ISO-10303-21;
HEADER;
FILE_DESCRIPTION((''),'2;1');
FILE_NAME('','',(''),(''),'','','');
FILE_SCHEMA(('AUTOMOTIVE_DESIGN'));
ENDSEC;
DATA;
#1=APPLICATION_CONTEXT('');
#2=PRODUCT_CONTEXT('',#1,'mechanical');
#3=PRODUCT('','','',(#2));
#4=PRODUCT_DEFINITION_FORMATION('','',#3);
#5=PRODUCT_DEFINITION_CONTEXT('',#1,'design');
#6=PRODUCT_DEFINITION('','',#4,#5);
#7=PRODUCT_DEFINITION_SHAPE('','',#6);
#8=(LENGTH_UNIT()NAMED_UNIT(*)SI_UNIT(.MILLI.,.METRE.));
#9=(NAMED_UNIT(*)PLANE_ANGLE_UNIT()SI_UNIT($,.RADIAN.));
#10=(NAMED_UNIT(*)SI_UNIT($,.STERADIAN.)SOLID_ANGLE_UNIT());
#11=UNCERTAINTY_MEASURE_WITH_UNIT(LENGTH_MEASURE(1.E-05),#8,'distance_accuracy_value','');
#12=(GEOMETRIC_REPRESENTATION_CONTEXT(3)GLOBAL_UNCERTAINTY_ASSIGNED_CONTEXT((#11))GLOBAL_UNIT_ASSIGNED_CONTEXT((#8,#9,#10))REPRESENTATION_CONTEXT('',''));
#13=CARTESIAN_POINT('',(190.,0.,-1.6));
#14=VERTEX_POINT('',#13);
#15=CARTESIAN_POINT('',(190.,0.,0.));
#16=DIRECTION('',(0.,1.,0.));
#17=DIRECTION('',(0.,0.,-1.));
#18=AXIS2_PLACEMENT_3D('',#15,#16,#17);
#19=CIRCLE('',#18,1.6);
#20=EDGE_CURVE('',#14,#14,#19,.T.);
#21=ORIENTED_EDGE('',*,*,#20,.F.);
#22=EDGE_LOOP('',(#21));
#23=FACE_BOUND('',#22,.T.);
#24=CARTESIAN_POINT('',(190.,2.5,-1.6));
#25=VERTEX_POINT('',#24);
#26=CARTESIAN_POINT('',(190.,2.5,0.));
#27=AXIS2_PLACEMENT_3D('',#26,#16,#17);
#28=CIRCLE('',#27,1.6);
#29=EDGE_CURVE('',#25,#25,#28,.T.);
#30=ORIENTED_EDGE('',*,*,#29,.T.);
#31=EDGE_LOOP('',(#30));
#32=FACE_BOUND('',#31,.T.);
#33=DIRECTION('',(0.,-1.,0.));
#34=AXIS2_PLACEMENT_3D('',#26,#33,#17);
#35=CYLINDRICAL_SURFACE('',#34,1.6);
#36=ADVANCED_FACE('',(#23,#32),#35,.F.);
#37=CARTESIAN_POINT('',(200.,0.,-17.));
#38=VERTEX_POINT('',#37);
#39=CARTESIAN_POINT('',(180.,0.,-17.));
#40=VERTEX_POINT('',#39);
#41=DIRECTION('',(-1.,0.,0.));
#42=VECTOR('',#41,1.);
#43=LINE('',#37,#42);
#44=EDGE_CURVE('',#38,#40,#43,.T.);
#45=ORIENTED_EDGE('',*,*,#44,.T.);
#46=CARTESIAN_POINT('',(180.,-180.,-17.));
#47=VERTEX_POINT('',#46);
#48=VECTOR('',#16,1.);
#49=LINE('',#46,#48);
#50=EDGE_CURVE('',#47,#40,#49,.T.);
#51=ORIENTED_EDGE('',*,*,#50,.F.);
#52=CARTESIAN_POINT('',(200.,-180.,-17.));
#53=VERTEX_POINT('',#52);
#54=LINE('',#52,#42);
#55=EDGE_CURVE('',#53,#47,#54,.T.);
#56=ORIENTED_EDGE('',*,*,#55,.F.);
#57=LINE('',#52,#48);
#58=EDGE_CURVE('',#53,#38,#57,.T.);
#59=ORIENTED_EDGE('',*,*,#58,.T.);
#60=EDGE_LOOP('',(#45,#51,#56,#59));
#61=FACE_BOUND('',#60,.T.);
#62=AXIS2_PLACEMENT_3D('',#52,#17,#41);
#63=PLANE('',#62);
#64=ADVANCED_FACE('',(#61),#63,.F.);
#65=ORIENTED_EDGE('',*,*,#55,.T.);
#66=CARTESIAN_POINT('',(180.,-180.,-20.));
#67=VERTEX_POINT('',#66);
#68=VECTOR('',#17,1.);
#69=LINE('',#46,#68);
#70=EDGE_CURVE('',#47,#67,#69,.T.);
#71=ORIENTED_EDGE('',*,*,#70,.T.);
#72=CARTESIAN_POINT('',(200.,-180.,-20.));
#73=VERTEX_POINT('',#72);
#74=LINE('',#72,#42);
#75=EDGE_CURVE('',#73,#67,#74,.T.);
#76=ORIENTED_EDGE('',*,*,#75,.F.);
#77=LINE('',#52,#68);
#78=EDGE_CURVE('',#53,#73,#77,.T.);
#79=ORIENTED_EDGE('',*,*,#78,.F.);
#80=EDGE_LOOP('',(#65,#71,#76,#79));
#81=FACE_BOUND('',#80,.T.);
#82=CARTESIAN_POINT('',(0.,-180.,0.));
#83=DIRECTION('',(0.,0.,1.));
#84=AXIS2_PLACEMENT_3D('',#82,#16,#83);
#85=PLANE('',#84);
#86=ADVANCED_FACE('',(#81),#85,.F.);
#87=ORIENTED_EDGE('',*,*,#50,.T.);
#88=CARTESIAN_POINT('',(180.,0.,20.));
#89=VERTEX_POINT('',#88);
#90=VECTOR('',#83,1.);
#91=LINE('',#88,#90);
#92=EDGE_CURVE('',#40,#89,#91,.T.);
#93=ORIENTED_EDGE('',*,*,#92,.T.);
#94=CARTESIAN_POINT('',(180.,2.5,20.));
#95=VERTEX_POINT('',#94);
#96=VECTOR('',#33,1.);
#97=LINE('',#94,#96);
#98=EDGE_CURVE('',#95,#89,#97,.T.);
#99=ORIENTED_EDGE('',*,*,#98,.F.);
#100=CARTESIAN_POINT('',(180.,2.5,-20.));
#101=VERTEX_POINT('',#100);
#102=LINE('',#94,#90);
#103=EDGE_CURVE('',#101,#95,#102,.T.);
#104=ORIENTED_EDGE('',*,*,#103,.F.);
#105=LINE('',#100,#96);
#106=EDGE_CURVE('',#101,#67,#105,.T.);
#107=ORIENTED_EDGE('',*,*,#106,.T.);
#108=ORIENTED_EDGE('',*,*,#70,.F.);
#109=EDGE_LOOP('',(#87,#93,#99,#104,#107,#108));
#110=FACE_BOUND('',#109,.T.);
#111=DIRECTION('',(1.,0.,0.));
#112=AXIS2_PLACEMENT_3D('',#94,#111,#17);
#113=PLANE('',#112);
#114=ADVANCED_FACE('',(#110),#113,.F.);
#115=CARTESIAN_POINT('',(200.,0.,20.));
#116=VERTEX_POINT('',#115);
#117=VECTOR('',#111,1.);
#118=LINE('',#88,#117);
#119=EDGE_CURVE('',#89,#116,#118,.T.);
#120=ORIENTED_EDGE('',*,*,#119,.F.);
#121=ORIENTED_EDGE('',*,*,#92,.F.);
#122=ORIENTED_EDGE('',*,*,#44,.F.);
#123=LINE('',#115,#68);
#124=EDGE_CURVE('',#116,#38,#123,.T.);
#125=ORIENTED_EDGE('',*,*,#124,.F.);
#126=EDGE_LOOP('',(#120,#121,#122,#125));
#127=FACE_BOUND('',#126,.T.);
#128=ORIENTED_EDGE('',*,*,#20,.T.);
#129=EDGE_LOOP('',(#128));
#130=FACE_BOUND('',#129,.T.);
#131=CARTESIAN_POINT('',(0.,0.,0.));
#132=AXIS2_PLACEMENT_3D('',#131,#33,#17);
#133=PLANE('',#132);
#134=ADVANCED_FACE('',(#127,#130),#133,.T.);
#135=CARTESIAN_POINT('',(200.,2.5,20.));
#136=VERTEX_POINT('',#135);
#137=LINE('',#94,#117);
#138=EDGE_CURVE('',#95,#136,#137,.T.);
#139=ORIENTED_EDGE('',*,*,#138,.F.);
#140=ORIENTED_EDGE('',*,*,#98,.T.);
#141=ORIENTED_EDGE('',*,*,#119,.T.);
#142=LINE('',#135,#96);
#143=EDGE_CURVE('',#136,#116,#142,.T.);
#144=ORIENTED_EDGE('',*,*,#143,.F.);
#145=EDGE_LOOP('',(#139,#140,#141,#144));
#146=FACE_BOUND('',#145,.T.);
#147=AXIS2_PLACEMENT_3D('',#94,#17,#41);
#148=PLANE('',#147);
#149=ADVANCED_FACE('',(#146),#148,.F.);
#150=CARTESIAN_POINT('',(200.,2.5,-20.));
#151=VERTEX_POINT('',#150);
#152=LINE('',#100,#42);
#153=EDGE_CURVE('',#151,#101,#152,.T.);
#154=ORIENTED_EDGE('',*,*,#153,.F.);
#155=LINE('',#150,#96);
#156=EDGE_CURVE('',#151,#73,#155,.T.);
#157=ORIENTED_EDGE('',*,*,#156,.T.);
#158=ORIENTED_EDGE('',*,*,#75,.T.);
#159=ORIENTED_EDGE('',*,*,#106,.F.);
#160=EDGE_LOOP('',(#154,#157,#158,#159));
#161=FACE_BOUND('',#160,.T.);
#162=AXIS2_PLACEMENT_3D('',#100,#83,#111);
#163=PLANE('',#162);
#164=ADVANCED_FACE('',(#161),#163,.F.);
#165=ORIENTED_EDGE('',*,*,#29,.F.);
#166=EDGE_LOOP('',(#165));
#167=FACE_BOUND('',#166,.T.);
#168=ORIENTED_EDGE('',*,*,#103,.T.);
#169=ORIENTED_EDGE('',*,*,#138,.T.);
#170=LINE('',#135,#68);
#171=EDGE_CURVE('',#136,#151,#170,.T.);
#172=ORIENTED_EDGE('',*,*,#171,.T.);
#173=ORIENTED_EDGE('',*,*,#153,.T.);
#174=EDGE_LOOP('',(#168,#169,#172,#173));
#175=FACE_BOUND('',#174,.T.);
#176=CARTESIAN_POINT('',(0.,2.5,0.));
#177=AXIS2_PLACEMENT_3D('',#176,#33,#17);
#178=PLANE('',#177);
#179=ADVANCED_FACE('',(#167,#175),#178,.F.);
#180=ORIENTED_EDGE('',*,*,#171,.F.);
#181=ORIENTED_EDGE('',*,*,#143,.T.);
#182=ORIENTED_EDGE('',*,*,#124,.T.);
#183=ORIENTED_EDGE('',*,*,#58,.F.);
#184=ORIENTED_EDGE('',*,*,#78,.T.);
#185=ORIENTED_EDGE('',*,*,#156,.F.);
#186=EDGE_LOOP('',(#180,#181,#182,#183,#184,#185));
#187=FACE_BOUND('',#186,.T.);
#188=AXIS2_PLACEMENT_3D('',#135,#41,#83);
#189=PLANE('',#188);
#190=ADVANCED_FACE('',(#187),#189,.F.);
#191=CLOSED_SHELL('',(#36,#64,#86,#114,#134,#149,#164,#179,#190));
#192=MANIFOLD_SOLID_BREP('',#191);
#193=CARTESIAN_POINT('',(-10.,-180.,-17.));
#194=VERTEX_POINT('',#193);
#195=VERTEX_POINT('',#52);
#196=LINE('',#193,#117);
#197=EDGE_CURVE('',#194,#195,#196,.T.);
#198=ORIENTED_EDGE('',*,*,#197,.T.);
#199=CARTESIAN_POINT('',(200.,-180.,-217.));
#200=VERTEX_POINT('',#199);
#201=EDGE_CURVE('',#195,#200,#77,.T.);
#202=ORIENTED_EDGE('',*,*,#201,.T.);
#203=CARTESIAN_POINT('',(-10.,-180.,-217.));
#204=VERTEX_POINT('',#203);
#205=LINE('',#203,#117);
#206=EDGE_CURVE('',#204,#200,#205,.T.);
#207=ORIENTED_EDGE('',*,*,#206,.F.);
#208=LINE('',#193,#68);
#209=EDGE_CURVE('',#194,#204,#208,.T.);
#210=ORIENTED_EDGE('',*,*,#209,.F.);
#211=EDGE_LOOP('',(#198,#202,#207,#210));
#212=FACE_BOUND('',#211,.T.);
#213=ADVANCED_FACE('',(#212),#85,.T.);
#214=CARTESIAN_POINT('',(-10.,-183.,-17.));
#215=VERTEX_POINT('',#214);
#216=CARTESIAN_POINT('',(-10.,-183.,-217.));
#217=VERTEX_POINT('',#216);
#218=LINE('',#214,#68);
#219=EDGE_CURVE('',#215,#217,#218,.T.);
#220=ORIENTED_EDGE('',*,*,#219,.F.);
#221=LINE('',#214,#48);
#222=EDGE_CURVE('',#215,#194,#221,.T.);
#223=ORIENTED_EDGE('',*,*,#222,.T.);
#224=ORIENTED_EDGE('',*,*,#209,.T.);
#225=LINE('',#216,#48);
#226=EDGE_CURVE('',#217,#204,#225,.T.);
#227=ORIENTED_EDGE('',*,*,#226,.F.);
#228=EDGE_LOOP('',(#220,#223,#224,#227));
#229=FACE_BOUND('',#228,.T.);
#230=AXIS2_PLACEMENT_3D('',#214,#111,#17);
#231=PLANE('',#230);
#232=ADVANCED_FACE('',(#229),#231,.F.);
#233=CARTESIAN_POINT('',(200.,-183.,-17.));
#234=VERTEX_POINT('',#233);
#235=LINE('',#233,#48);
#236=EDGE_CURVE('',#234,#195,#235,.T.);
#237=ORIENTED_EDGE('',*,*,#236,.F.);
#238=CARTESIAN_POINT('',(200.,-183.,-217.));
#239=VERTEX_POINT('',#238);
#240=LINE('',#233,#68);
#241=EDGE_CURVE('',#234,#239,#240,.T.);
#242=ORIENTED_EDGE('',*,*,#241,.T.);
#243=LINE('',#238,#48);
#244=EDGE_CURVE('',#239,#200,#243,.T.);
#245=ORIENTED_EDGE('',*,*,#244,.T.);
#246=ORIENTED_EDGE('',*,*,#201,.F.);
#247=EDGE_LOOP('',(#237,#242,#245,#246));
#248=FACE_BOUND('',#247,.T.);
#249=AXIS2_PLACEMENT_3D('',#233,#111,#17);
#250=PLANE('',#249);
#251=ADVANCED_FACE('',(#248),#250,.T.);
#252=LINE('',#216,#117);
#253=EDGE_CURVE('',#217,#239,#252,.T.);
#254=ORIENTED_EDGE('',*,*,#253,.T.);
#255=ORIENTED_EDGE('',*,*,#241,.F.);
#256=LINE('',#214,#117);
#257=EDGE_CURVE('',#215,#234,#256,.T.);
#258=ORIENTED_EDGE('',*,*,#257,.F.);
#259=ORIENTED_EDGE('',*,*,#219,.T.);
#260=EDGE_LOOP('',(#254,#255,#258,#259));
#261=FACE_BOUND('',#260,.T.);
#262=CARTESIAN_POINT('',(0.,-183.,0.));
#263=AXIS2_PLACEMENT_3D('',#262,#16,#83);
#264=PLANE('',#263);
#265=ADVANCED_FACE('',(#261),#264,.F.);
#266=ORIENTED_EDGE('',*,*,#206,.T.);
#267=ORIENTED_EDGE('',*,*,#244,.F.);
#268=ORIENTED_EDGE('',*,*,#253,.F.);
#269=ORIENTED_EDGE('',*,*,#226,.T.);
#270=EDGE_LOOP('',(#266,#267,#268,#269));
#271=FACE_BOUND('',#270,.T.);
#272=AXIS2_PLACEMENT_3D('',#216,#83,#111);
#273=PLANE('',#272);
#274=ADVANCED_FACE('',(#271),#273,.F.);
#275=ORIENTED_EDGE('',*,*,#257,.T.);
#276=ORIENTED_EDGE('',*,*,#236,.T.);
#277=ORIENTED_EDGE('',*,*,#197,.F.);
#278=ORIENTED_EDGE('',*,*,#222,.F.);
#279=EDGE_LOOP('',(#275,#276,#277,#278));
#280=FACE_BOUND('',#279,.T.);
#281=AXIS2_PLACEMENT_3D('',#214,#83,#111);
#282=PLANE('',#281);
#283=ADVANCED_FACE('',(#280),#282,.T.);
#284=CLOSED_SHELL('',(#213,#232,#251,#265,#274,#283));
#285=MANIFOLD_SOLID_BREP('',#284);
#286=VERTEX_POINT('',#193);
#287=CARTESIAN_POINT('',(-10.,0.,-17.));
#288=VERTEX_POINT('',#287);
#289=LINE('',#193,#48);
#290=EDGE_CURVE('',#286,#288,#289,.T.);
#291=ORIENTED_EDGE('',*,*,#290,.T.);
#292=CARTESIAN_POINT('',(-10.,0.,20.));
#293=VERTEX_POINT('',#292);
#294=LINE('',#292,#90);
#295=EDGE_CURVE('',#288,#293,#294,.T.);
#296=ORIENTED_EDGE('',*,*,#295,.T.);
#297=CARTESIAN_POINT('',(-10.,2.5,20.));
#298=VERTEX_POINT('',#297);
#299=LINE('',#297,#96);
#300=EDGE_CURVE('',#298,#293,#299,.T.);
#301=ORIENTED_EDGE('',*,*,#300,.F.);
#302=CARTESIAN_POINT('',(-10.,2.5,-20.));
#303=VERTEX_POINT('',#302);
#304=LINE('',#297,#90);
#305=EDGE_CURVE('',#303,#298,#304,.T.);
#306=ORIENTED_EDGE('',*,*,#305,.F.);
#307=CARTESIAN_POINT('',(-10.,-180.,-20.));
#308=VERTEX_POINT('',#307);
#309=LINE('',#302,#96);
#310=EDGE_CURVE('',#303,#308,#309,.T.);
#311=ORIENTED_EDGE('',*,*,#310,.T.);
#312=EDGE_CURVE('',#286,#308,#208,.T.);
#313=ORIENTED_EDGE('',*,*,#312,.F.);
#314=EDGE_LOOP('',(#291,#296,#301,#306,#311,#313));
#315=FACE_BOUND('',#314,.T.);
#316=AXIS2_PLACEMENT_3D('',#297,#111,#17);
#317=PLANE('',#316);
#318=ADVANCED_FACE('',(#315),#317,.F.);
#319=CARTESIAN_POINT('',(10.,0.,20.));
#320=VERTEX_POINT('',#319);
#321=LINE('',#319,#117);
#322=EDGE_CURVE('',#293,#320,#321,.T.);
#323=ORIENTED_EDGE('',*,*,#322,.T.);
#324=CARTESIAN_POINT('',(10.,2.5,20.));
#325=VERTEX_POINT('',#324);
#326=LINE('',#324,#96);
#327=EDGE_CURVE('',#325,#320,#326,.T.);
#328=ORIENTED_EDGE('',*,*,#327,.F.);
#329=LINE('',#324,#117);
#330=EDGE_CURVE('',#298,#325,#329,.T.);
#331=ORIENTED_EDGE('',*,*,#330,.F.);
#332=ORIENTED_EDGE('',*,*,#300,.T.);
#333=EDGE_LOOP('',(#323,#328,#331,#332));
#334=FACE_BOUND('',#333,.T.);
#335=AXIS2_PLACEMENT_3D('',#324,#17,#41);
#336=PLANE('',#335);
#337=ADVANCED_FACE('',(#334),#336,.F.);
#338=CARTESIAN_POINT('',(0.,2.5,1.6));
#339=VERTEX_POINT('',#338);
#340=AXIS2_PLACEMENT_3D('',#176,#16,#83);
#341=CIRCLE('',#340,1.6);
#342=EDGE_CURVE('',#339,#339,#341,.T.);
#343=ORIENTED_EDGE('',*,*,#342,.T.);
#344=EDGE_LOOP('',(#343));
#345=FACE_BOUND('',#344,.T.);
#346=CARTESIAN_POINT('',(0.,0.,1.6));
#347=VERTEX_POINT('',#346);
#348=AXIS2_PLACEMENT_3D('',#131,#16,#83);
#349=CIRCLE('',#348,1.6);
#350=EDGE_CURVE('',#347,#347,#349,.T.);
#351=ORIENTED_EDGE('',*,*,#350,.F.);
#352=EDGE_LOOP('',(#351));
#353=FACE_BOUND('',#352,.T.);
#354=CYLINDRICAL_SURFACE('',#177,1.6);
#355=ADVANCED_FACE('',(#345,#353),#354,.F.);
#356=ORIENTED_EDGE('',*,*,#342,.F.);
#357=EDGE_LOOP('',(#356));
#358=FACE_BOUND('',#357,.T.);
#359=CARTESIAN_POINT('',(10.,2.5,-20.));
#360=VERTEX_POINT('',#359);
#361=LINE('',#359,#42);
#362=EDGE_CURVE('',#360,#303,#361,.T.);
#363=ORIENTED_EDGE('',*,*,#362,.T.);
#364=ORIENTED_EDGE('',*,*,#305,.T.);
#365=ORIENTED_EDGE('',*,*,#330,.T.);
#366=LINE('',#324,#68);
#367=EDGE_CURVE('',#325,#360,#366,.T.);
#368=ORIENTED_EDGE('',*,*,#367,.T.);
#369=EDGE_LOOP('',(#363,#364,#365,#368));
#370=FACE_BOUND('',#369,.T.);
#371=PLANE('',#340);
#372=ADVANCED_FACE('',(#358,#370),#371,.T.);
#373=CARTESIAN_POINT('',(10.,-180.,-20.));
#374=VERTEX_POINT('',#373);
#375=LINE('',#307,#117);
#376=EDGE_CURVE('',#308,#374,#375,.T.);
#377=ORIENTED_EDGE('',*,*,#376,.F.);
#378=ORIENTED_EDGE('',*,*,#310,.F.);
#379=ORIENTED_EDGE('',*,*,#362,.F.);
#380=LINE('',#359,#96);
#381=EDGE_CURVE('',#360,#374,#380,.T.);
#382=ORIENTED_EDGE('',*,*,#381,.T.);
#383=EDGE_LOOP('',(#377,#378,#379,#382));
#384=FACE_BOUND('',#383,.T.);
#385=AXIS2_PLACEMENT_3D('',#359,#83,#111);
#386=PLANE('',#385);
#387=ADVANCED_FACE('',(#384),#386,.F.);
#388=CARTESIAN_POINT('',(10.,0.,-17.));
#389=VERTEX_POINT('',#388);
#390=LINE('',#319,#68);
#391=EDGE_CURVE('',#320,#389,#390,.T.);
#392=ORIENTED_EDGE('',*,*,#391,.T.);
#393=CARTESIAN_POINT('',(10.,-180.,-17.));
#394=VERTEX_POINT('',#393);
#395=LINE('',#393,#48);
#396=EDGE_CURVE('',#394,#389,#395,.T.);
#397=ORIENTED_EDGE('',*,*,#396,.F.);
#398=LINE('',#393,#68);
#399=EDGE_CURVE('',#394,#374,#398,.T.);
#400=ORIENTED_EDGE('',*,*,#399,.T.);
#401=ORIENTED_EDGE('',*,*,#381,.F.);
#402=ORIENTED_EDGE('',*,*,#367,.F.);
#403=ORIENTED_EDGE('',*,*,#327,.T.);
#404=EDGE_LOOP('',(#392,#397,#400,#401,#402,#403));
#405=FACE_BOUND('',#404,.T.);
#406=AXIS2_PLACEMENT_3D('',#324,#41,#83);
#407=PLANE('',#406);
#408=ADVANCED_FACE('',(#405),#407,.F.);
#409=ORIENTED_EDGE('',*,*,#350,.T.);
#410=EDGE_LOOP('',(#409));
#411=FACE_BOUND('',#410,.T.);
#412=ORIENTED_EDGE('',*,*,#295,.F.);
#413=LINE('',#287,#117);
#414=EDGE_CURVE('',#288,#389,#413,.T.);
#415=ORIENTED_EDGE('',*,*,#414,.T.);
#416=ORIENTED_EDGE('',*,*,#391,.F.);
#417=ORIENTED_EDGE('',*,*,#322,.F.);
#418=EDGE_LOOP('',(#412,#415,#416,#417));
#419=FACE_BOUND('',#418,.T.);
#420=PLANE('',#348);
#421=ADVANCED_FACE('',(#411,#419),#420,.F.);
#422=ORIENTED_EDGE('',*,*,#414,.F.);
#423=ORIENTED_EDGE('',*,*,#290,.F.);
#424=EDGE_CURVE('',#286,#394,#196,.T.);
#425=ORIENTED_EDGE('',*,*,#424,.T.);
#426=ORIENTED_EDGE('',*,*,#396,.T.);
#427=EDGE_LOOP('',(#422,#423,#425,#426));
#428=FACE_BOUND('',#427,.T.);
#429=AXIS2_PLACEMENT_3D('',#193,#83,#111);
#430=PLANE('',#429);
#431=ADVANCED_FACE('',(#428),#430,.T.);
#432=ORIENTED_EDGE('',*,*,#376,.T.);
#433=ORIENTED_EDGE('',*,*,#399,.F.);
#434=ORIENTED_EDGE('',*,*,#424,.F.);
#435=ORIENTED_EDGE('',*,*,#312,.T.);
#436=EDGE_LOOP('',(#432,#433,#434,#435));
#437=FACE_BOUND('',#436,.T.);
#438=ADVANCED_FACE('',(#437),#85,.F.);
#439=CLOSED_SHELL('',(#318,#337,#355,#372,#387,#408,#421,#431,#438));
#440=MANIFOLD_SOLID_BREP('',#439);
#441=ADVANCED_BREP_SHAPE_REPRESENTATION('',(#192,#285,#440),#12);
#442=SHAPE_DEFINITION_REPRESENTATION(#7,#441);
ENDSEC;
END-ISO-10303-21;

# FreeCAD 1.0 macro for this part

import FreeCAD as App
import Part
import Sketcher
from FreeCAD import Vector
Q = App.Units.Quantity


def add_polygon(sketch, points):
    """Adds a closed chain of lines whose ends are joined by coincident constraints."""
    first, n = sketch.GeometryCount, len(points)
    for a, b in zip(points, points[1:] + points[:1]):
        sketch.addGeometry(Part.LineSegment(App.Vector(*a, 0), App.Vector(*b, 0)), False)
    for i in range(n):
        sketch.addConstraint(Sketcher.Constraint("Coincident", first + i, 2, first + (i + 1) % n, 1))

doc = App.newDocument("Part")
body = doc.addObject("PartDesign::Body", "Body")

sketch1 = body.newObject("Sketcher::SketchObject", "Sketch")
sketch1.AttachmentSupport = (doc.getObject("XZ_Plane"), [""])
sketch1.MapMode = "FlatFace"
add_polygon(sketch1, [(-10, -20), (-10, 20), (10, 20), (10, -20)])
sketch1.addGeometry(Part.Circle(Vector(0, 0, 0), Vector(0, 0, 1), 1.6), False)
sketch1.addConstraint([
    Sketcher.Constraint("Vertical", 0),
    Sketcher.Constraint("Horizontal", 1),
    Sketcher.Constraint("Vertical", 2),
    Sketcher.Constraint("Horizontal", 3),
    Sketcher.Constraint("Coincident", 4, 3, -1, 1),
    Sketcher.Constraint("Symmetric", 0, 2, 2, 2, -1, 1),
    Sketcher.Constraint("Diameter", 4, Q("3.2 mm")),
    Sketcher.Constraint("DistanceX", 1, 1, 1, 2, Q("20 mm")),
    Sketcher.Constraint("DistanceY", 0, 1, 0, 2, Q("40 mm")),
])
pad1 = body.newObject("PartDesign::Pad", "Pad")
pad1.Profile = sketch1
pad1.Length = 2.5
pad1.Reversed = True
body2 = doc.addObject("PartDesign::Body", "Body001")

sketch2 = body2.newObject("Sketcher::SketchObject", "Sketch001")
sketch2.AttachmentSupport = (doc.getObject("XZ_Plane001"), [""])
sketch2.MapMode = "FlatFace"
add_polygon(sketch2, [(180, -20), (180, 20), (200, 20), (200, -20)])
sketch2.addGeometry(Part.Circle(Vector(190, 0, 0), Vector(0, 0, 1), 1.6), False)
sketch2.addConstraint([
    Sketcher.Constraint("Vertical", 0),
    Sketcher.Constraint("Horizontal", 1),
    Sketcher.Constraint("Vertical", 2),
    Sketcher.Constraint("Horizontal", 3),
    Sketcher.Constraint("PointOnObject", 4, 3, -1),
    Sketcher.Constraint("Diameter", 4, Q("3.2 mm")),
    Sketcher.Constraint("DistanceX", 1, 1, 1, 2, Q("20 mm")),
    Sketcher.Constraint("DistanceY", 0, 1, 0, 2, Q("40 mm")),
    Sketcher.Constraint("DistanceX", -1, 1, 4, 3, Q("190 mm")),
    Sketcher.Constraint("DistanceX", -1, 1, 0, 2, Q("180 mm")),
    Sketcher.Constraint("DistanceY", -1, 1, 0, 2, Q("20 mm")),
])
pad2 = body2.newObject("PartDesign::Pad", "Pad001")
pad2.Profile = sketch2
pad2.Length = 2.5
pad2.Reversed = True
body.AllowCompound = True
doc.recompute()

boolean = body.newObject("PartDesign::Boolean", "Boolean")
boolean.Type = "Fuse"
boolean.addObjects([body2])

sketch3 = body.newObject("Sketcher::SketchObject", "Sketch002")
sketch3.AttachmentSupport = (doc.getObject("XZ_Plane"), [""])
sketch3.MapMode = "FlatFace"
add_polygon(sketch3, [(-10, -17), (-10, -20), (10, -20), (10, -17)])
add_polygon(sketch3, [(180, -17), (180, -20), (200, -20), (200, -17)])
sketch3.addConstraint([
    Sketcher.Constraint("Vertical", 0),
    Sketcher.Constraint("Horizontal", 1),
    Sketcher.Constraint("Vertical", 2),
    Sketcher.Constraint("Horizontal", 3),
    Sketcher.Constraint("Vertical", 4),
    Sketcher.Constraint("Horizontal", 5),
    Sketcher.Constraint("Vertical", 6),
    Sketcher.Constraint("Horizontal", 7),
    Sketcher.Constraint("Horizontal", 1, 2, 4, 2),
    Sketcher.Constraint("Horizontal", 3, 2, 6, 2),
    Sketcher.Constraint("Equal", 3, 5),
    Sketcher.Constraint("DistanceX", 1, 1, 1, 2, Q("20 mm")),
    Sketcher.Constraint("DistanceY", 0, 2, 0, 1, Q("3 mm")),
    Sketcher.Constraint("DistanceX", 0, 2, -1, 1, Q("10 mm")),
    Sketcher.Constraint("DistanceY", 0, 2, -1, 1, Q("20 mm")),
    Sketcher.Constraint("DistanceX", -1, 1, 4, 2, Q("180 mm")),
])
pad3 = body.newObject("PartDesign::Pad", "Pad002")
pad3.Profile = sketch3
pad3.Length = 180
body3 = doc.addObject("PartDesign::Body", "Body002")

sketch4 = body3.newObject("Sketcher::SketchObject", "Sketch003")
sketch4.AttachmentSupport = (doc.getObject("XZ_Plane002"), [""])
sketch4.MapMode = "FlatFace"
sketch4.AttachmentOffset = App.Placement(Vector(0, 0, 180), App.Rotation())
add_polygon(sketch4, [(-10, -17), (-10, -217), (200, -217), (200, -17)])
sketch4.addConstraint([
    Sketcher.Constraint("Vertical", 0),
    Sketcher.Constraint("Horizontal", 1),
    Sketcher.Constraint("Vertical", 2),
    Sketcher.Constraint("Horizontal", 3),
    Sketcher.Constraint("DistanceX", 1, 1, 1, 2, Q("210 mm")),
    Sketcher.Constraint("DistanceY", 0, 2, 0, 1, Q("200 mm")),
    Sketcher.Constraint("DistanceX", 0, 2, -1, 1, Q("10 mm")),
    Sketcher.Constraint("DistanceY", 0, 2, -1, 1, Q("217 mm")),
])
pad4 = body3.newObject("PartDesign::Pad", "Pad003")
pad4.Profile = sketch4
pad4.Length = 3

doc.recompute()
